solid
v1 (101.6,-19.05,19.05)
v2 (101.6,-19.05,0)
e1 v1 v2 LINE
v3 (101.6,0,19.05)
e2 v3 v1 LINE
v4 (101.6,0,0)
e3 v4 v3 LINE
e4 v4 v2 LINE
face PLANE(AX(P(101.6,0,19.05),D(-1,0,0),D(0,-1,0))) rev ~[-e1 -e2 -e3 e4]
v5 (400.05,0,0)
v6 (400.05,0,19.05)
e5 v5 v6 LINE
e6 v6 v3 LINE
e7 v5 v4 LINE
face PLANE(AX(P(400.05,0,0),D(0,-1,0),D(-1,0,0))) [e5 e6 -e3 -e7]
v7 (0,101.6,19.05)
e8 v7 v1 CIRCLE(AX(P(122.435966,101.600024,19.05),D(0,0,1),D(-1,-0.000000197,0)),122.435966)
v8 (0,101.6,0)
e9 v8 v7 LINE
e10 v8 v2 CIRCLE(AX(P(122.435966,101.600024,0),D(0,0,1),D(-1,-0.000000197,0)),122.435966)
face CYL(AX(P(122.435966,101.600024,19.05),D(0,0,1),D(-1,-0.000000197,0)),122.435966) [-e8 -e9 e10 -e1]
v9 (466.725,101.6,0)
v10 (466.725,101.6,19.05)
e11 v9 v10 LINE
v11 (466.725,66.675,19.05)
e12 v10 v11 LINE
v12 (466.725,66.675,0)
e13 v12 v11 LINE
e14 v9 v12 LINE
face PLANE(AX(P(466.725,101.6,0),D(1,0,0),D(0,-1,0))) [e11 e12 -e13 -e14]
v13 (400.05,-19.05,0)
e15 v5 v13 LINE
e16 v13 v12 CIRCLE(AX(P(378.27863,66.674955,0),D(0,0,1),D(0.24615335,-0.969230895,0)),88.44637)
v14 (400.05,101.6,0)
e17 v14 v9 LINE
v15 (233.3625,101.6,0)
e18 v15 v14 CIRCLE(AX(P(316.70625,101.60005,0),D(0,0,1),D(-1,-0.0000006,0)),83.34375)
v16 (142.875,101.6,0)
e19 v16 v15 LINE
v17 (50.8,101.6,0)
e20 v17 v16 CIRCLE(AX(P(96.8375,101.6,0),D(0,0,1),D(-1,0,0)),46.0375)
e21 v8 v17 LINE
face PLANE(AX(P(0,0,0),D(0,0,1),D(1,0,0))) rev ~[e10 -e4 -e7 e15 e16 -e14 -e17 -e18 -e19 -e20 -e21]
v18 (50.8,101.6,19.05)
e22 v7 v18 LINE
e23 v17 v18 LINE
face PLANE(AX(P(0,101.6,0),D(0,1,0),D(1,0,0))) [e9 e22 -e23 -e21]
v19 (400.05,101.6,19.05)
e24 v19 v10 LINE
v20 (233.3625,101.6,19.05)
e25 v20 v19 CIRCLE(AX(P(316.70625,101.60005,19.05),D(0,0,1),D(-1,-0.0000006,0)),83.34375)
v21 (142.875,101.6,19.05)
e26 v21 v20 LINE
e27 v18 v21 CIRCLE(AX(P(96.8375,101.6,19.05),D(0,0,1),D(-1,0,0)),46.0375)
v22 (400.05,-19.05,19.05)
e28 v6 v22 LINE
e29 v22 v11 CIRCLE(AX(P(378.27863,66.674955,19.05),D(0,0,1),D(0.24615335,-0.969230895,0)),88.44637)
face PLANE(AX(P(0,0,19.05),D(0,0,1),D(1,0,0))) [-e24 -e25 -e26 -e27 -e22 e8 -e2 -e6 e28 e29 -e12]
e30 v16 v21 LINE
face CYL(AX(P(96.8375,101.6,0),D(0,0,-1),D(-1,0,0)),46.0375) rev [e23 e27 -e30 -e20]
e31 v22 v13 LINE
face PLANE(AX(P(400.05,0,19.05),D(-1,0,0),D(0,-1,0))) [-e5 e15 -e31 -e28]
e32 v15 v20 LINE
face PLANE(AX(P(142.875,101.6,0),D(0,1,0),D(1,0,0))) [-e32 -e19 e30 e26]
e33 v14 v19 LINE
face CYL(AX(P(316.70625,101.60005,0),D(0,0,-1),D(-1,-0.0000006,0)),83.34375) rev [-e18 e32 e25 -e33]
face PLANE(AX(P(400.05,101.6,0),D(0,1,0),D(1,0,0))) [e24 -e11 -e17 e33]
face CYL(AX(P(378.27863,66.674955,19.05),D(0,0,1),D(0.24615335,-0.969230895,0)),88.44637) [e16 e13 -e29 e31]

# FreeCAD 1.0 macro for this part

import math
import FreeCAD as App
import Part
import Sketcher

V = App.Vector
Q = App.Units.Quantity

doc = App.newDocument("Part")
body = doc.addObject("PartDesign::Body", "Body")

# Sketch on XY plane
sketch1 = doc.addObject("Sketcher::SketchObject", "Sketch")
body.addObject(sketch1)
sketch1.AttachmentSupport = (doc.XY_Plane, [""])
sketch1.MapMode = "FlatFace"
sketch1.addGeometry(Part.LineSegment(V(51, 102, 0), V(0, 102, 0)), False)
sketch1.addGeometry(Part.ArcOfCircle(Part.Circle(V(102, 102, 0), V(0, 0, 1), 102), math.radians(180), math.radians(270)), False)
sketch1.addGeometry(Part.LineSegment(V(102, 0, 0), V(400, 0, 0)), False)
sketch1.addGeometry(Part.ArcOfCircle(Part.Circle(V(400, 67, 0), V(0, 0, 1), 67), math.radians(-90), math.radians(0)), False)
sketch1.addGeometry(Part.LineSegment(V(467, 67, 0), V(467, 102, 0)), False)
sketch1.addGeometry(Part.LineSegment(V(467, 102, 0), V(400, 102, 0)), False)
sketch1.addGeometry(Part.ArcOfCircle(Part.Circle(V(317, 102, 0), V(0, 0, 1), 83), math.radians(180), math.radians(360)), False)
sketch1.addGeometry(Part.LineSegment(V(233, 102, 0), V(143, 102, 0)), False)
sketch1.addGeometry(Part.ArcOfCircle(Part.Circle(V(97, 102, 0), V(0, 0, 1), 46), math.radians(180), math.radians(360)), False)
sketch1.addConstraint(Sketcher.Constraint("Coincident", 0, 2, 1, 1))
sketch1.addConstraint(Sketcher.Constraint("Tangent", 1, 2, 2, 1))
sketch1.addConstraint(Sketcher.Constraint("Tangent", 2, 2, 3, 1))
sketch1.addConstraint(Sketcher.Constraint("Tangent", 3, 2, 4, 1))
sketch1.addConstraint(Sketcher.Constraint("Coincident", 4, 2, 5, 1))
sketch1.addConstraint(Sketcher.Constraint("Coincident", 5, 2, 6, 2))
sketch1.addConstraint(Sketcher.Constraint("Coincident", 6, 1, 7, 1))
sketch1.addConstraint(Sketcher.Constraint("Coincident", 7, 2, 8, 2))
sketch1.addConstraint(Sketcher.Constraint("Coincident", 8, 1, 0, 1))
sketch1.addConstraint(Sketcher.Constraint("Horizontal", 0))
sketch1.addConstraint(Sketcher.Constraint("Horizontal", 2))
sketch1.addConstraint(Sketcher.Constraint("Vertical", 4))
sketch1.addConstraint(Sketcher.Constraint("Horizontal", 5))
sketch1.addConstraint(Sketcher.Constraint("Horizontal", 7))
sketch1.addConstraint(Sketcher.Constraint("PointOnObject", 0, 2, -2))
sketch1.addConstraint(Sketcher.Constraint("PointOnObject", 1, 2, -1))
sketch1.addConstraint(Sketcher.Constraint("Horizontal", 1, 3, 6, 3))
sketch1.addConstraint(Sketcher.Constraint("Horizontal", 6, 3, 8, 3))
sketch1.addConstraint(Sketcher.Constraint("Horizontal", 8, 3, 0, 2))
sketch1.addConstraint(Sketcher.Constraint("Horizontal", 0, 2, 4, 2))
sketch1.addConstraint(Sketcher.Constraint("Horizontal", 5, 2, 6, 1))
sketch1.addConstraint(Sketcher.Constraint("Vertical", 2, 2, 5, 2))
sketch1.addConstraint(Sketcher.Constraint("Radius", 1, Q("4 in")))
sketch1.addConstraint(Sketcher.Constraint("DistanceX", 0, 2, 0, 1, Q("2 in")))
sketch1.addConstraint(Sketcher.Constraint("Radius", 3, Q("2.625 in")))
sketch1.addConstraint(Sketcher.Constraint("Radius", 6, Q("3.281248 in")))
sketch1.addConstraint(Sketcher.Constraint("Radius", 8, Q("1.8125 in")))
sketch1.addConstraint(Sketcher.Constraint("DistanceX", 7, 2, 7, 1, Q("3.5625 in")))
pad1 = doc.addObject("PartDesign::Pad", "Pad")
body.addObject(pad1)
pad1.Profile = sketch1
pad1.Length = Q("0.75 in")

# Sketch on XY plane
sketch2 = doc.addObject("Sketcher::SketchObject", "Sketch001")
body.addObject(sketch2)
sketch2.AttachmentSupport = (doc.XY_Plane, [""])
sketch2.MapMode = "FlatFace"
sketch2.AttachmentOffset = App.Placement(V(0, 0, 0.75 * 25.4), App.Rotation())
sketch2.addGeometry(Part.LineSegment(V(102, -19, 0), V(102, 0, 0)), False)
sketch2.addGeometry(Part.ArcOfCircle(Part.Circle(V(102, 102, 0), V(0, 0, 1), 102), math.radians(180), math.radians(270)), False)
sketch2.addGeometry(Part.ArcOfCircle(Part.Circle(V(122, 102, 0), V(0, 0, 1), 122), math.radians(180), math.radians(260)), False)
sketch2.addGeometry(Part.ArcOfCircle(Part.Circle(V(400, 67, 0), V(0, 0, 1), 67), math.radians(-90), math.radians(0)), False)
sketch2.addGeometry(Part.LineSegment(V(400, 0, 0), V(400, -19, 0)), False)
sketch2.addGeometry(Part.ArcOfCircle(Part.Circle(V(378, 67, 0), V(0, 0, 1), 88), math.radians(-76), math.radians(0)), False)
sketch2.addConstraint(Sketcher.Constraint("Coincident", 0, 2, 1, 2))
sketch2.addConstraint(Sketcher.Constraint("Tangent", 1, 1, 2, 1))
sketch2.addConstraint(Sketcher.Constraint("Coincident", 2, 2, 0, 1))
sketch2.addConstraint(Sketcher.Constraint("Coincident", 3, 1, 4, 1))
sketch2.addConstraint(Sketcher.Constraint("Coincident", 4, 2, 5, 1))
sketch2.addConstraint(Sketcher.Constraint("Tangent", 5, 2, 3, 2))
sketch2.addConstraint(Sketcher.Constraint("Vertical", 0))
sketch2.addConstraint(Sketcher.Constraint("Vertical", 4))
sketch2.addConstraint(Sketcher.Constraint("PointOnObject", 0, 2, -1))
sketch2.addConstraint(Sketcher.Constraint("PointOnObject", 1, 1, -2))
sketch2.addConstraint(Sketcher.Constraint("PointOnObject", 3, 1, -1))
sketch2.addConstraint(Sketcher.Constraint("Horizontal", 1, 3, 2, 3))
sketch2.addConstraint(Sketcher.Constraint("Horizontal", 3, 3, 5, 3))
sketch2.addConstraint(Sketcher.Constraint("Horizontal", 2, 2, 4, 2))
sketch2.addConstraint(Sketcher.Constraint("Vertical", 1, 3, 0, 2))
sketch2.addConstraint(Sketcher.Constraint("Radius", 1, Q("4 in")))
sketch2.addConstraint(Sketcher.Constraint("Radius", 3, Q("2.625 in")))
sketch2.addConstraint(Sketcher.Constraint("DistanceY", 0, 1, 0, 2, Q("0.75 in")))
sketch2.addConstraint(Sketcher.Constraint("DistanceX", -1, 1, 3, 3, Q("15.75 in")))
sketch2.addConstraint(Sketcher.Constraint("DistanceX", -1, 1, 3, 1, Q("15.75 in")))
pad2 = doc.addObject("PartDesign::Pad", "Pad001")
body.addObject(pad2)
pad2.Profile = sketch2
pad2.Length = Q("0.75 in")
pad2.Reversed = True

doc.recompute()
